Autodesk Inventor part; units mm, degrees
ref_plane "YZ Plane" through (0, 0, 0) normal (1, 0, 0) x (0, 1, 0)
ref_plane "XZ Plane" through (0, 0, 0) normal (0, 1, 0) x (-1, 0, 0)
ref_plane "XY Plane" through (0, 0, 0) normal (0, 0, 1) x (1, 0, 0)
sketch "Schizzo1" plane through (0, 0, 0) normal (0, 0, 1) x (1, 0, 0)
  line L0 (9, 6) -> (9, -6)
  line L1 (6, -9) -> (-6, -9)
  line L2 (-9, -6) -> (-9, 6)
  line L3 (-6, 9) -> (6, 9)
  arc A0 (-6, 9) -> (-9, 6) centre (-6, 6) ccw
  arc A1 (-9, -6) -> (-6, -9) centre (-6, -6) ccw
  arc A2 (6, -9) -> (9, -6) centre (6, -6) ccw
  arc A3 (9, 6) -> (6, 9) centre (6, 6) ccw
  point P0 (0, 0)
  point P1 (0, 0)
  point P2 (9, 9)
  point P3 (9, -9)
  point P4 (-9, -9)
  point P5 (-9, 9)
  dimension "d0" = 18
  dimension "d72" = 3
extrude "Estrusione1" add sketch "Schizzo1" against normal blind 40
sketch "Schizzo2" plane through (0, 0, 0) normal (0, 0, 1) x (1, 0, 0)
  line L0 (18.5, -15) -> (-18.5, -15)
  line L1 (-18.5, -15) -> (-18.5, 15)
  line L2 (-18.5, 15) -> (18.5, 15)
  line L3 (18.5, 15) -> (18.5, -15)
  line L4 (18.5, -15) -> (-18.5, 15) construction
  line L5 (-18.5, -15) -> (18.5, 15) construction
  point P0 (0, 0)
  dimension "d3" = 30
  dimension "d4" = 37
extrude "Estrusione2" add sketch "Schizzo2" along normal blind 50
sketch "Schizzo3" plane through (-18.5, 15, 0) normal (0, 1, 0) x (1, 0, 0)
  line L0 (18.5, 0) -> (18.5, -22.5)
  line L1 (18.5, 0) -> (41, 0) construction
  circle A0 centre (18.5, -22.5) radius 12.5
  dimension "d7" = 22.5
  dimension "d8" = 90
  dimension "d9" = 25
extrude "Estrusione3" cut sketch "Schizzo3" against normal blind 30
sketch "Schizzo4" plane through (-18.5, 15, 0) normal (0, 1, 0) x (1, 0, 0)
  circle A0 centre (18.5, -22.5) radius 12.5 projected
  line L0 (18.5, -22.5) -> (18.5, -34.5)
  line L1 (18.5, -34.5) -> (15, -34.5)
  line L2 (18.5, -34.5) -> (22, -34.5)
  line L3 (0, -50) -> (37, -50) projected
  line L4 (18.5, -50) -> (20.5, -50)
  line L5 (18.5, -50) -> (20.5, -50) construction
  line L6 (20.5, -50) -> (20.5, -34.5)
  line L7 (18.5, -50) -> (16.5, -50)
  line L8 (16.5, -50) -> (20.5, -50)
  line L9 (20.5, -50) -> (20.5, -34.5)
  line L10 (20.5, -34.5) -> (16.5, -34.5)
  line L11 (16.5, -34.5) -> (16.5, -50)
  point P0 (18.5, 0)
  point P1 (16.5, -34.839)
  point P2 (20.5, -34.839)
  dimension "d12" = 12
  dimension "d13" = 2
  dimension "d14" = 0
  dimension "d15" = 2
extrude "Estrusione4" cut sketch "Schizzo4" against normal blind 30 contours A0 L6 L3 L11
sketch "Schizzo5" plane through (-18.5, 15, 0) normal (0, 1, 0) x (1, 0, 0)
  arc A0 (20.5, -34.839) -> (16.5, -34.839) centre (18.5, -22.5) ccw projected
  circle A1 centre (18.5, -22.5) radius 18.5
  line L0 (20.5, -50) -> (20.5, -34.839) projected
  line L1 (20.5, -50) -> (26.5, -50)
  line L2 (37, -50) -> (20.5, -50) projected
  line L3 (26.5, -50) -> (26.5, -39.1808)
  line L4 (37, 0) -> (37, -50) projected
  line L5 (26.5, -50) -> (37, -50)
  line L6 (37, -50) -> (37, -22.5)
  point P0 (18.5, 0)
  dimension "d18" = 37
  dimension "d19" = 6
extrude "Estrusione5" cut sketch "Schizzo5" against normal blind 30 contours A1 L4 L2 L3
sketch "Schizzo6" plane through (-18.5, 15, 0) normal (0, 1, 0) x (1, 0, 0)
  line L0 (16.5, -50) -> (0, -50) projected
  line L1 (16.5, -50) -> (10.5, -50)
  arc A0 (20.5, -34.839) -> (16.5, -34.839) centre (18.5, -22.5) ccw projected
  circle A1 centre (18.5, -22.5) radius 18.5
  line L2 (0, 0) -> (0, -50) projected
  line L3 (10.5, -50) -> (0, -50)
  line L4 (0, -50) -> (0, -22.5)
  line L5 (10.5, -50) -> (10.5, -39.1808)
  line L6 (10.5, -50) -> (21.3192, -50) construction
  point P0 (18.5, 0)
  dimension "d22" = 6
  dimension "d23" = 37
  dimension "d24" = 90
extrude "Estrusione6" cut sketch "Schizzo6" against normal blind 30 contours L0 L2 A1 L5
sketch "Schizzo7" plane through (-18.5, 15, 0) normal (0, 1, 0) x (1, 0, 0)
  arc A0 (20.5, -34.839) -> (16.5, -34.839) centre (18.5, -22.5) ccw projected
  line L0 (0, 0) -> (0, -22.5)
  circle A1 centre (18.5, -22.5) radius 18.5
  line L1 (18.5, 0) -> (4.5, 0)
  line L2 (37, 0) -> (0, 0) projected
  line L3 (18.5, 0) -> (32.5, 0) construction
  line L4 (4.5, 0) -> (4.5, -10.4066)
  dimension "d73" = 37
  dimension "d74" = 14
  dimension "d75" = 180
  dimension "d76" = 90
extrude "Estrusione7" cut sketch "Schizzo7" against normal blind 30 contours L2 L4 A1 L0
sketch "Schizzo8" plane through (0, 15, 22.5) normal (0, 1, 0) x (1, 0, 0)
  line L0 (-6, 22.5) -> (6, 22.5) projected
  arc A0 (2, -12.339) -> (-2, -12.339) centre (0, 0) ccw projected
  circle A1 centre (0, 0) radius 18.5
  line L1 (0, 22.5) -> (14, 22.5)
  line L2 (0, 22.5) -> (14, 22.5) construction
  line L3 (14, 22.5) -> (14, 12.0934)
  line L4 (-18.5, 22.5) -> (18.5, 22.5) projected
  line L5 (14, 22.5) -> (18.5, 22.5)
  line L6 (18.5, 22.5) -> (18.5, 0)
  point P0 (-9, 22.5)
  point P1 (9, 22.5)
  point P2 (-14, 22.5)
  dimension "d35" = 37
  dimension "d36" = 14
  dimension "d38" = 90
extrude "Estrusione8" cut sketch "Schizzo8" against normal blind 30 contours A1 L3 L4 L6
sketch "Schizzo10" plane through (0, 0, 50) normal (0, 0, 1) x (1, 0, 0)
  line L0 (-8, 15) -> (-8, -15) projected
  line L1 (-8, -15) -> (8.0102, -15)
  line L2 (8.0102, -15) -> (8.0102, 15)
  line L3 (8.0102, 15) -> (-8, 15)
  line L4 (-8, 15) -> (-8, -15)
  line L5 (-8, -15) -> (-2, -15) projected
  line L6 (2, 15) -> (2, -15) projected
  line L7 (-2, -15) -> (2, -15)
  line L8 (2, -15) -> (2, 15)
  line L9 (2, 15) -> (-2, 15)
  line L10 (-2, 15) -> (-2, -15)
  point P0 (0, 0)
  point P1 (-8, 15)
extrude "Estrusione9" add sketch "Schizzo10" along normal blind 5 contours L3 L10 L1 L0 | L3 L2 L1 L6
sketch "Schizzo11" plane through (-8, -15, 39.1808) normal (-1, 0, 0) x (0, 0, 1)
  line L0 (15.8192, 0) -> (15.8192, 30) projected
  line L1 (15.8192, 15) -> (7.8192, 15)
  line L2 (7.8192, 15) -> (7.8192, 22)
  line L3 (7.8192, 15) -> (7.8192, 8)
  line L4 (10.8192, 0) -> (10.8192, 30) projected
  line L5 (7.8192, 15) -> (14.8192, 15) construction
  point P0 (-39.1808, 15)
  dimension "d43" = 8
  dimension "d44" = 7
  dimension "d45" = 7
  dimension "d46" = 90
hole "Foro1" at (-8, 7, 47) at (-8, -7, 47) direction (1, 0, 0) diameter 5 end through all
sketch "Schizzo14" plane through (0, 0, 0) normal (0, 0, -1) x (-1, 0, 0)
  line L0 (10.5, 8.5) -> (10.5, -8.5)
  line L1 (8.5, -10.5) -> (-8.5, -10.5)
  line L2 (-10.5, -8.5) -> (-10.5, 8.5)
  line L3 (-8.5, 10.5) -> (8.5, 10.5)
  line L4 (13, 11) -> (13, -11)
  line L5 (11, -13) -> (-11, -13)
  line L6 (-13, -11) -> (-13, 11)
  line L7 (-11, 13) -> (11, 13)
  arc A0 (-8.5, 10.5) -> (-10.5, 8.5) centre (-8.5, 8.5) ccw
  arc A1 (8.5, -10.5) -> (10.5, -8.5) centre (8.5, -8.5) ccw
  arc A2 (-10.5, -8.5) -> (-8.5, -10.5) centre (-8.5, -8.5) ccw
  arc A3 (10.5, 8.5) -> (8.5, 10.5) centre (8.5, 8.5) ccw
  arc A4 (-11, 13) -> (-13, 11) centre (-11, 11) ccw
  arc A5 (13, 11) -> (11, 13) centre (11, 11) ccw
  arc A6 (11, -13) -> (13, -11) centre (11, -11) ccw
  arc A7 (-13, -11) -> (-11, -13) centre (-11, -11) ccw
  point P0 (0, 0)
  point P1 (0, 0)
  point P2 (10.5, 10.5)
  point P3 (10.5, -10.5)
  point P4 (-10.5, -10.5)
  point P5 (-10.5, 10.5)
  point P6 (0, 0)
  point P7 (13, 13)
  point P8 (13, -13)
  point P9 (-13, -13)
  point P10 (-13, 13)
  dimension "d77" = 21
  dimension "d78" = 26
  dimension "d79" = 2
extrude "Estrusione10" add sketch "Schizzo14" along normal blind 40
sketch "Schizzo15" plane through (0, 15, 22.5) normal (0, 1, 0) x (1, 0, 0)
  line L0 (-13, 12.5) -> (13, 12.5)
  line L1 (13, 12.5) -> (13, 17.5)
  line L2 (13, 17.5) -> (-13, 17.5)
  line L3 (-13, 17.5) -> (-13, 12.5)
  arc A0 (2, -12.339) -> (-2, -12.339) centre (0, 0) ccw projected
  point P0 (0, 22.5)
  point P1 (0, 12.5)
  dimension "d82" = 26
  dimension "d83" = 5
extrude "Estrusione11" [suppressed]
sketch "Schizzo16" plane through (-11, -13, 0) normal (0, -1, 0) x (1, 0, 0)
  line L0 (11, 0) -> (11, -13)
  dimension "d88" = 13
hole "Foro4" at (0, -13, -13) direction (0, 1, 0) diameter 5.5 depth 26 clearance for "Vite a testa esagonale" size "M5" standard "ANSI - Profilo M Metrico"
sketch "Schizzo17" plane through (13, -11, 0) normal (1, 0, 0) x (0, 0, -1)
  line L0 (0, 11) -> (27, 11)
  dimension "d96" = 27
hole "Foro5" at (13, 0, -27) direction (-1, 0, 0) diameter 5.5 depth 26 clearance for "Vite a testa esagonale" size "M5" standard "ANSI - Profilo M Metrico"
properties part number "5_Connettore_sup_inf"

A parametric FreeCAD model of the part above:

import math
import FreeCAD as App
import Part
import Sketcher
from FreeCAD import Vector


def add_polygon(sketch, points):
    """Adds a closed chain of lines whose ends are joined by coincident constraints."""
    first, n = sketch.GeometryCount, len(points)
    for a, b in zip(points, points[1:] + points[:1]):
        sketch.addGeometry(Part.LineSegment(App.Vector(*a, 0), App.Vector(*b, 0)), False)
    for i in range(n):
        sketch.addConstraint(Sketcher.Constraint("Coincident", first + i, 2, first + (i + 1) % n, 1))

doc = App.newDocument("Part")
body = doc.addObject("PartDesign::Body", "Body")

# Sketch on XY plane
sketch1 = body.newObject("Sketcher::SketchObject", "Sketch")
sketch1.AttachmentSupport = (doc.getObject("XY_Plane"), [""])
sketch1.MapMode = "FlatFace"
sketch1.addGeometry(Part.LineSegment(Vector(9, -6, 0), Vector(9, 6, 0)), False)
sketch1.addGeometry(Part.ArcOfCircle(Part.Circle(Vector(6, 6, 0), Vector(0, 0, 1), 3), math.radians(0), math.radians(90)), False)
sketch1.addGeometry(Part.LineSegment(Vector(6, 9, 0), Vector(-6, 9, 0)), False)
sketch1.addGeometry(Part.ArcOfCircle(Part.Circle(Vector(-6, 6, 0), Vector(0, 0, 1), 3), math.radians(90), math.radians(180)), False)
sketch1.addGeometry(Part.LineSegment(Vector(-9, 6, 0), Vector(-9, -6, 0)), False)
sketch1.addGeometry(Part.ArcOfCircle(Part.Circle(Vector(-6, -6, 0), Vector(0, 0, 1), 3), math.radians(180), math.radians(270)), False)
sketch1.addGeometry(Part.LineSegment(Vector(-6, -9, 0), Vector(6, -9, 0)), False)
sketch1.addGeometry(Part.ArcOfCircle(Part.Circle(Vector(6, -6, 0), Vector(0, 0, 1), 3), math.radians(-90), math.radians(0)), False)
sketch1.addConstraint(Sketcher.Constraint("Tangent", 0, 2, 1, 1))
sketch1.addConstraint(Sketcher.Constraint("Tangent", 1, 2, 2, 1))
sketch1.addConstraint(Sketcher.Constraint("Tangent", 2, 2, 3, 1))
sketch1.addConstraint(Sketcher.Constraint("Tangent", 3, 2, 4, 1))
sketch1.addConstraint(Sketcher.Constraint("Tangent", 4, 2, 5, 1))
sketch1.addConstraint(Sketcher.Constraint("Tangent", 5, 2, 6, 1))
sketch1.addConstraint(Sketcher.Constraint("Tangent", 6, 2, 7, 1))
sketch1.addConstraint(Sketcher.Constraint("Tangent", 7, 2, 0, 1))
sketch1.addConstraint(Sketcher.Constraint("Vertical", 0))
sketch1.addConstraint(Sketcher.Constraint("Horizontal", 2))
sketch1.addConstraint(Sketcher.Constraint("Vertical", 4))
sketch1.addConstraint(Sketcher.Constraint("Horizontal", 6))
sketch1.addConstraint(Sketcher.Constraint("Equal", 1, 3))
sketch1.addConstraint(Sketcher.Constraint("Equal", 3, 5))
sketch1.addConstraint(Sketcher.Constraint("Equal", 5, 7))
sketch1.addConstraint(Sketcher.Constraint("Symmetric", 1, 3, 5, 3, -1, 1))
sketch1.addConstraint(Sketcher.Constraint("Equal", 6, 0))
sketch1.addConstraint(Sketcher.Constraint("Radius", 1, 3.0))
sketch1.addConstraint(Sketcher.Constraint("DistanceX", 2, 2, 2, 1, 12.0))
pad1 = body.newObject("PartDesign::Pad", "Pad")
pad1.Profile = sketch1
pad1.Length = 40
pad1.Reversed = True

# Sketch on XY plane
sketch2 = body.newObject("Sketcher::SketchObject", "Sketch001")
sketch2.AttachmentSupport = (doc.getObject("XY_Plane"), [""])
sketch2.MapMode = "FlatFace"
add_polygon(sketch2, [(-18, -15), (18, -15), (18, 15), (-18, 15)])  # lines 0-3
sketch2.addConstraint(Sketcher.Constraint("Horizontal", 0))
sketch2.addConstraint(Sketcher.Constraint("Vertical", 1))
sketch2.addConstraint(Sketcher.Constraint("Horizontal", 2))
sketch2.addConstraint(Sketcher.Constraint("Vertical", 3))
sketch2.addConstraint(Sketcher.Constraint("Symmetric", 0, 2, 2, 2, -1, 1))
sketch2.addConstraint(Sketcher.Constraint("DistanceX", 0, 1, 0, 2, 37.0))
sketch2.addConstraint(Sketcher.Constraint("DistanceY", 1, 1, 1, 2, 30.0))
pad2 = body.newObject("PartDesign::Pad", "Pad001")
pad2.Profile = sketch2
pad2.Length = 50

# Sketch on XZ plane
sketch3 = body.newObject("Sketcher::SketchObject", "Sketch002")
sketch3.AttachmentSupport = (doc.getObject("XZ_Plane"), [""])
sketch3.MapMode = "FlatFace"
sketch3.AttachmentOffset = App.Placement(Vector(0, 0, -15), App.Rotation())
sketch3.addGeometry(Part.Circle(Vector(0, 22, 0), Vector(0, 0, 1), 12), False)
sketch3.addConstraint(Sketcher.Constraint("PointOnObject", 0, 3, -2))
sketch3.addConstraint(Sketcher.Constraint("Diameter", 0, 25.0))
sketch3.addConstraint(Sketcher.Constraint("DistanceY", -1, 1, 0, 3, 22.5))
pocket1 = body.newObject("PartDesign::Pocket", "Pocket")
pocket1.Profile = sketch3
pocket1.Length = 30
pocket1.Reversed = True

# Sketch on XZ plane
sketch4 = body.newObject("Sketcher::SketchObject", "Sketch003")
sketch4.AttachmentSupport = (doc.getObject("XZ_Plane"), [""])
sketch4.MapMode = "FlatFace"
sketch4.AttachmentOffset = App.Placement(Vector(0, 0, -15), App.Rotation())
sketch4.addGeometry(Part.ArcOfCircle(Part.Circle(Vector(0, 22.5, 0), Vector(0, 0, 1), 12.5), math.radians(80.79), math.radians(99.21)), False)
sketch4.addGeometry(Part.LineSegment(Vector(-2, 34.8, 0), Vector(-2, 50, 0)), False)
sketch4.addGeometry(Part.LineSegment(Vector(-2, 50, 0), Vector(2, 50, 0)), False)
sketch4.addGeometry(Part.LineSegment(Vector(2, 50, 0), Vector(2, 34.8, 0)), False)
sketch4.addConstraint(Sketcher.Constraint("Coincident", 0, 2, 1, 1))
sketch4.addConstraint(Sketcher.Constraint("Coincident", 1, 2, 2, 1))
sketch4.addConstraint(Sketcher.Constraint("Coincident", 2, 2, 3, 1))
sketch4.addConstraint(Sketcher.Constraint("Coincident", 3, 2, 0, 1))
sketch4.addConstraint(Sketcher.Constraint("Vertical", 1))
sketch4.addConstraint(Sketcher.Constraint("Horizontal", 2))
sketch4.addConstraint(Sketcher.Constraint("Vertical", 3))
sketch4.addConstraint(Sketcher.Constraint("Symmetric", 0, 2, 3, 2, -2))
sketch4.addConstraint(Sketcher.Constraint("DistanceX", 0, 2, -1, 1, 2.0))
sketch4.addConstraint(Sketcher.Constraint("Radius", 0, 12.5))
sketch4.addConstraint(Sketcher.Constraint("DistanceY", -1, 1, 1, 2, 50.0))
sketch4.addConstraint(Sketcher.Constraint("DistanceY", -1, 1, 0, 3, 22.5))
pocket2 = body.newObject("PartDesign::Pocket", "Pocket001")
pocket2.Profile = sketch4
pocket2.Length = 30
pocket2.Reversed = True

# Sketch on XZ plane
sketch5 = body.newObject("Sketcher::SketchObject", "Sketch004")
sketch5.AttachmentSupport = (doc.getObject("XZ_Plane"), [""])
sketch5.MapMode = "FlatFace"
sketch5.AttachmentOffset = App.Placement(Vector(0, 0, -15), App.Rotation())
sketch5.addGeometry(Part.ArcOfCircle(Part.Circle(Vector(0, 22, 0), Vector(0, 0, 1), 18), math.radians(0), math.radians(64)), False)
sketch5.addGeometry(Part.LineSegment(Vector(8, 39, 0), Vector(8, 50, 0)), False)
sketch5.addGeometry(Part.LineSegment(Vector(8, 50, 0), Vector(18, 50, 0)), False)
sketch5.addGeometry(Part.LineSegment(Vector(18, 50, 0), Vector(18, 22, 0)), False)
sketch5.addConstraint(Sketcher.Constraint("Coincident", 0, 2, 1, 1))
sketch5.addConstraint(Sketcher.Constraint("Coincident", 1, 2, 2, 1))
sketch5.addConstraint(Sketcher.Constraint("Coincident", 2, 2, 3, 1))
sketch5.addConstraint(Sketcher.Constraint("Tangent", 3, 2, 0, 1))
sketch5.addConstraint(Sketcher.Constraint("Vertical", 1))
sketch5.addConstraint(Sketcher.Constraint("Horizontal", 2))
sketch5.addConstraint(Sketcher.Constraint("Vertical", 3))
sketch5.addConstraint(Sketcher.Constraint("PointOnObject", 0, 3, -2))
sketch5.addConstraint(Sketcher.Constraint("Radius", 0, 18.5))
sketch5.addConstraint(Sketcher.Constraint("DistanceX", 2, 1, 2, 2, 10.5))
sketch5.addConstraint(Sketcher.Constraint("DistanceY", 3, 2, 3, 1, 27.5))
sketch5.addConstraint(Sketcher.Constraint("DistanceY", -1, 1, 1, 2, 50.0))
pocket3 = body.newObject("PartDesign::Pocket", "Pocket002")
pocket3.Profile = sketch5
pocket3.Length = 30
pocket3.Reversed = True

# Sketch on XZ plane
sketch6 = body.newObject("Sketcher::SketchObject", "Sketch005")
sketch6.AttachmentSupport = (doc.getObject("XZ_Plane"), [""])
sketch6.MapMode = "FlatFace"
sketch6.AttachmentOffset = App.Placement(Vector(0, 0, -15), App.Rotation())
sketch6.addGeometry(Part.LineSegment(Vector(-18, 50, 0), Vector(-8, 50, 0)), False)
sketch6.addGeometry(Part.LineSegment(Vector(-8, 50, 0), Vector(-8, 39, 0)), False)
sketch6.addGeometry(Part.ArcOfCircle(Part.Circle(Vector(0, 22, 0), Vector(0, 0, 1), 18), math.radians(116), math.radians(180)), False)
sketch6.addGeometry(Part.LineSegment(Vector(-18, 22, 0), Vector(-18, 50, 0)), False)
sketch6.addConstraint(Sketcher.Constraint("Coincident", 0, 2, 1, 1))
sketch6.addConstraint(Sketcher.Constraint("Coincident", 1, 2, 2, 1))
sketch6.addConstraint(Sketcher.Constraint("Tangent", 2, 2, 3, 1))
sketch6.addConstraint(Sketcher.Constraint("Coincident", 3, 2, 0, 1))
sketch6.addConstraint(Sketcher.Constraint("Horizontal", 0))
sketch6.addConstraint(Sketcher.Constraint("Vertical", 1))
sketch6.addConstraint(Sketcher.Constraint("Vertical", 3))
sketch6.addConstraint(Sketcher.Constraint("PointOnObject", 2, 3, -2))
sketch6.addConstraint(Sketcher.Constraint("Radius", 2, 18.5))
sketch6.addConstraint(Sketcher.Constraint("DistanceX", 0, 1, 0, 2, 10.5))
sketch6.addConstraint(Sketcher.Constraint("DistanceY", 3, 1, 3, 2, 27.5))
sketch6.addConstraint(Sketcher.Constraint("DistanceY", -1, 1, 0, 2, 50.0))
pocket4 = body.newObject("PartDesign::Pocket", "Pocket003")
pocket4.Profile = sketch6
pocket4.Length = 30
pocket4.Reversed = True

# Sketch on XZ plane
sketch7 = body.newObject("Sketcher::SketchObject", "Sketch006")
sketch7.AttachmentSupport = (doc.getObject("XZ_Plane"), [""])
sketch7.MapMode = "FlatFace"
sketch7.AttachmentOffset = App.Placement(Vector(0, 0, -15), App.Rotation())
sketch7.addGeometry(Part.LineSegment(Vector(-14, 0, 0), Vector(-18.5, 0, 0)), False)
sketch7.addGeometry(Part.LineSegment(Vector(-18.5, 0, 0), Vector(-18.5, 22.5, 0)), False)
sketch7.addGeometry(Part.ArcOfCircle(Part.Circle(Vector(0, 22.5, 0), Vector(0, 0, 1), 18.5), math.radians(180), math.radians(221)), False)
sketch7.addGeometry(Part.LineSegment(Vector(-14, 10.4, 0), Vector(-14, 0, 0)), False)
sketch7.addConstraint(Sketcher.Constraint("Coincident", 0, 2, 1, 1))
sketch7.addConstraint(Sketcher.Constraint("Tangent", 1, 2, 2, 1))
sketch7.addConstraint(Sketcher.Constraint("Coincident", 2, 2, 3, 1))
sketch7.addConstraint(Sketcher.Constraint("Coincident", 3, 2, 0, 1))
sketch7.addConstraint(Sketcher.Constraint("Horizontal", 0))
sketch7.addConstraint(Sketcher.Constraint("Vertical", 1))
sketch7.addConstraint(Sketcher.Constraint("Vertical", 3))
sketch7.addConstraint(Sketcher.Constraint("PointOnObject", 2, 3, -2))
sketch7.addConstraint(Sketcher.Constraint("PointOnObject", 0, 2, -1))
sketch7.addConstraint(Sketcher.Constraint("Radius", 2, 18.5))
sketch7.addConstraint(Sketcher.Constraint("DistanceX", 2, 2, -1, 1, 14.0))
sketch7.addConstraint(Sketcher.Constraint("DistanceY", 1, 1, 1, 2, 22.5))
pocket5 = body.newObject("PartDesign::Pocket", "Pocket004")
pocket5.Profile = sketch7
pocket5.Length = 30
pocket5.Reversed = True

# Sketch on XZ plane
sketch8 = body.newObject("Sketcher::SketchObject", "Sketch007")
sketch8.AttachmentSupport = (doc.getObject("XZ_Plane"), [""])
sketch8.MapMode = "FlatFace"
sketch8.AttachmentOffset = App.Placement(Vector(0, 0, -15), App.Rotation())
sketch8.addGeometry(Part.ArcOfCircle(Part.Circle(Vector(0, 22.5, 0), Vector(0, 0, 1), 18.5), math.radians(-41), math.radians(0)), False)
sketch8.addGeometry(Part.LineSegment(Vector(18.5, 22.5, 0), Vector(18.5, 0, 0)), False)
sketch8.addGeometry(Part.LineSegment(Vector(18.5, 0, 0), Vector(14, 0, 0)), False)
sketch8.addGeometry(Part.LineSegment(Vector(14, 0, 0), Vector(14, 10.4, 0)), False)
sketch8.addConstraint(Sketcher.Constraint("Tangent", 0, 2, 1, 1))
sketch8.addConstraint(Sketcher.Constraint("Coincident", 1, 2, 2, 1))
sketch8.addConstraint(Sketcher.Constraint("Coincident", 2, 2, 3, 1))
sketch8.addConstraint(Sketcher.Constraint("Coincident", 3, 2, 0, 1))
sketch8.addConstraint(Sketcher.Constraint("Vertical", 1))
sketch8.addConstraint(Sketcher.Constraint("Horizontal", 2))
sketch8.addConstraint(Sketcher.Constraint("Vertical", 3))
sketch8.addConstraint(Sketcher.Constraint("PointOnObject", 0, 3, -2))
sketch8.addConstraint(Sketcher.Constraint("PointOnObject", 1, 2, -1))
sketch8.addConstraint(Sketcher.Constraint("Radius", 0, 18.5))
sketch8.addConstraint(Sketcher.Constraint("DistanceX", -1, 1, 2, 2, 14.0))
sketch8.addConstraint(Sketcher.Constraint("DistanceY", 1, 2, 1, 1, 22.5))
pocket6 = body.newObject("PartDesign::Pocket", "Pocket005")
pocket6.Profile = sketch8
pocket6.Length = 30
pocket6.Reversed = True

# Sketch on XY plane
sketch9 = body.newObject("Sketcher::SketchObject", "Sketch008")
sketch9.AttachmentSupport = (doc.getObject("XY_Plane"), [""])
sketch9.MapMode = "FlatFace"
sketch9.AttachmentOffset = App.Placement(Vector(0, 0, 50), App.Rotation())
add_polygon(sketch9, [(-2, 15), (-8, 15), (-8, -15), (-2, -15)])  # lines 0-3
add_polygon(sketch9, [(8, 15), (2, 15), (2, -15), (8, -15)])  # lines 4-7
sketch9.addConstraint(Sketcher.Constraint("Horizontal", 0))
sketch9.addConstraint(Sketcher.Constraint("Vertical", 1))
sketch9.addConstraint(Sketcher.Constraint("Horizontal", 2))
sketch9.addConstraint(Sketcher.Constraint("Vertical", 3))
sketch9.addConstraint(Sketcher.Constraint("Horizontal", 4))
sketch9.addConstraint(Sketcher.Constraint("Vertical", 5))
sketch9.addConstraint(Sketcher.Constraint("Horizontal", 6))
sketch9.addConstraint(Sketcher.Constraint("Vertical", 7))
sketch9.addConstraint(Sketcher.Constraint("Symmetric", 2, 2, 4, 2, -1, 1))
sketch9.addConstraint(Sketcher.Constraint("Horizontal", 3, 2, 4, 2))
sketch9.addConstraint(Sketcher.Constraint("Horizontal", 2, 2, 5, 2))
sketch9.addConstraint(Sketcher.Constraint("DistanceX", 0, 2, 0, 1, 6.0))
sketch9.addConstraint(Sketcher.Constraint("DistanceY", 1, 2, 1, 1, 30.0))
sketch9.addConstraint(Sketcher.Constraint("DistanceX", 0, 2, -1, 1, 8.0))
sketch9.addConstraint(Sketcher.Constraint("DistanceX", 4, 2, 4, 1, 6.0102))
pad3 = body.newObject("PartDesign::Pad", "Pad002")
pad3.Profile = sketch9
pad3.Length = 5

# Sketch on YZ plane
sketch10 = body.newObject("Sketcher::SketchObject", "Sketch009")
sketch10.AttachmentSupport = (doc.getObject("YZ_Plane"), [""])
sketch10.MapMode = "FlatFace"
sketch10.AttachmentOffset = App.Placement(Vector(0, 0, -8), App.Rotation())
sketch10.addGeometry(Part.Circle(Vector(7, 47, 0), Vector(0, 0, 1), 2.5), False)
sketch10.addGeometry(Part.Circle(Vector(-7, 47, 0), Vector(0, 0, 1), 2.5), False)
sketch10.addConstraint(Sketcher.Constraint("Equal", 0, 1))
sketch10.addConstraint(Sketcher.Constraint("Symmetric", 0, 3, 1, 3, -2))
sketch10.addConstraint(Sketcher.Constraint("Diameter", 0, 5.0))
sketch10.addConstraint(Sketcher.Constraint("DistanceX", -1, 1, 0, 3, 7.0))
sketch10.addConstraint(Sketcher.Constraint("DistanceY", -1, 1, 0, 3, 47.0))
doc.recompute()
hole = body.newObject("PartDesign::Hole", "Hole")
hole.Profile = sketch10
hole.ThreadType = "None"
hole.Diameter = 5
hole.DepthType = "ThroughAll"
hole.Reversed = True

# Sketch on XY plane
sketch11 = body.newObject("Sketcher::SketchObject", "Sketch010")
sketch11.AttachmentSupport = (doc.getObject("XY_Plane"), [""])
sketch11.MapMode = "FlatFace"
sketch11.addGeometry(Part.LineSegment(Vector(-13, -11, 0), Vector(-13, 11, 0)), False)
sketch11.addGeometry(Part.ArcOfCircle(Part.Circle(Vector(-11, 11, 0), Vector(0, 0, 1), 2), math.radians(90), math.radians(180)), False)
sketch11.addGeometry(Part.LineSegment(Vector(-11, 13, 0), Vector(11, 13, 0)), False)
sketch11.addGeometry(Part.ArcOfCircle(Part.Circle(Vector(11, 11, 0), Vector(0, 0, 1), 2), math.radians(0), math.radians(90)), False)
sketch11.addGeometry(Part.LineSegment(Vector(13, 11, 0), Vector(13, -11, 0)), False)
sketch11.addGeometry(Part.ArcOfCircle(Part.Circle(Vector(11, -11, 0), Vector(0, 0, 1), 2), math.radians(-90), math.radians(0)), False)
sketch11.addGeometry(Part.LineSegment(Vector(11, -13, 0), Vector(-11, -13, 0)), False)
sketch11.addGeometry(Part.ArcOfCircle(Part.Circle(Vector(-11, -11, 0), Vector(0, 0, 1), 2), math.radians(180), math.radians(270)), False)
sketch11.addGeometry(Part.ArcOfCircle(Part.Circle(Vector(-8.5, 8.5, 0), Vector(0, 0, 1), 2), math.radians(90), math.radians(180)), False)
sketch11.addGeometry(Part.LineSegment(Vector(-10.5, 8.5, 0), Vector(-10.5, -8.5, 0)), False)
sketch11.addGeometry(Part.ArcOfCircle(Part.Circle(Vector(-8.5, -8.5, 0), Vector(0, 0, 1), 2), math.radians(180), math.radians(270)), False)
sketch11.addGeometry(Part.LineSegment(Vector(-8.5, -10.5, 0), Vector(8.5, -10.5, 0)), False)
sketch11.addGeometry(Part.ArcOfCircle(Part.Circle(Vector(8.5, -8.5, 0), Vector(0, 0, 1), 2), math.radians(-90), math.radians(0)), False)
sketch11.addGeometry(Part.LineSegment(Vector(10.5, -8.5, 0), Vector(10.5, 8.5, 0)), False)
sketch11.addGeometry(Part.ArcOfCircle(Part.Circle(Vector(8.5, 8.5, 0), Vector(0, 0, 1), 2), math.radians(0), math.radians(90)), False)
sketch11.addGeometry(Part.LineSegment(Vector(8.5, 10.5, 0), Vector(-8.5, 10.5, 0)), False)
sketch11.addConstraint(Sketcher.Constraint("Tangent", 0, 2, 1, 2))
sketch11.addConstraint(Sketcher.Constraint("Tangent", 1, 1, 2, 1))
sketch11.addConstraint(Sketcher.Constraint("Tangent", 2, 2, 3, 2))
sketch11.addConstraint(Sketcher.Constraint("Tangent", 3, 1, 4, 1))
sketch11.addConstraint(Sketcher.Constraint("Tangent", 4, 2, 5, 2))
sketch11.addConstraint(Sketcher.Constraint("Tangent", 5, 1, 6, 1))
sketch11.addConstraint(Sketcher.Constraint("Tangent", 6, 2, 7, 2))
sketch11.addConstraint(Sketcher.Constraint("Tangent", 7, 1, 0, 1))
sketch11.addConstraint(Sketcher.Constraint("Tangent", 8, 2, 9, 1))
sketch11.addConstraint(Sketcher.Constraint("Tangent", 9, 2, 10, 1))
sketch11.addConstraint(Sketcher.Constraint("Tangent", 10, 2, 11, 1))
sketch11.addConstraint(Sketcher.Constraint("Tangent", 11, 2, 12, 1))
sketch11.addConstraint(Sketcher.Constraint("Tangent", 12, 2, 13, 1))
sketch11.addConstraint(Sketcher.Constraint("Tangent", 13, 2, 14, 1))
sketch11.addConstraint(Sketcher.Constraint("Tangent", 14, 2, 15, 1))
sketch11.addConstraint(Sketcher.Constraint("Tangent", 15, 2, 8, 1))
sketch11.addConstraint(Sketcher.Constraint("Vertical", 0))
sketch11.addConstraint(Sketcher.Constraint("Horizontal", 2))
sketch11.addConstraint(Sketcher.Constraint("Vertical", 4))
sketch11.addConstraint(Sketcher.Constraint("Horizontal", 6))
sketch11.addConstraint(Sketcher.Constraint("Vertical", 9))
sketch11.addConstraint(Sketcher.Constraint("Horizontal", 11))
sketch11.addConstraint(Sketcher.Constraint("Vertical", 13))
sketch11.addConstraint(Sketcher.Constraint("Horizontal", 15))
sketch11.addConstraint(Sketcher.Constraint("Equal", 1, 3))
sketch11.addConstraint(Sketcher.Constraint("Equal", 3, 5))
sketch11.addConstraint(Sketcher.Constraint("Equal", 5, 7))
sketch11.addConstraint(Sketcher.Constraint("Equal", 7, 8))
sketch11.addConstraint(Sketcher.Constraint("Equal", 8, 10))
sketch11.addConstraint(Sketcher.Constraint("Equal", 10, 12))
sketch11.addConstraint(Sketcher.Constraint("Equal", 12, 14))
sketch11.addConstraint(Sketcher.Constraint("Symmetric", 1, 3, 5, 3, -1, 1))
sketch11.addConstraint(Sketcher.Constraint("Symmetric", 8, 3, 12, 3, -1, 1))
sketch11.addConstraint(Sketcher.Constraint("Equal", 6, 0))
sketch11.addConstraint(Sketcher.Constraint("Equal", 15, 9))
sketch11.addConstraint(Sketcher.Constraint("Radius", 1, 2.0))
sketch11.addConstraint(Sketcher.Constraint("DistanceX", 2, 1, 2, 2, 22.0))
sketch11.addConstraint(Sketcher.Constraint("DistanceX", 11, 1, 11, 2, 17.0))
pad4 = body.newObject("PartDesign::Pad", "Pad003")
pad4.Profile = sketch11
pad4.Length = 40
pad4.Reversed = True

# Sketch on XZ plane
sketch12 = body.newObject("Sketcher::SketchObject", "Sketch011")
sketch12.AttachmentSupport = (doc.getObject("XZ_Plane"), [""])
sketch12.MapMode = "FlatFace"
sketch12.AttachmentOffset = App.Placement(Vector(0, 0, 13), App.Rotation())
sketch12.addGeometry(Part.Circle(Vector(0, -13, 0), Vector(0, 0, 1), 2.8), False)
sketch12.addConstraint(Sketcher.Constraint("PointOnObject", 0, 3, -2))
sketch12.addConstraint(Sketcher.Constraint("Diameter", 0, 5.5))
sketch12.addConstraint(Sketcher.Constraint("DistanceY", 0, 3, -1, 1, 13.0))
doc.recompute()
hole2 = body.newObject("PartDesign::Hole", "Hole001")
hole2.Profile = sketch12
hole2.ThreadType = "None"
hole2.Diameter = 5.5
hole2.DepthType = "Dimension"
hole2.Depth = 26
hole2.DrillPoint = "Flat"

# Sketch on YZ plane
sketch13 = body.newObject("Sketcher::SketchObject", "Sketch012")
sketch13.AttachmentSupport = (doc.getObject("YZ_Plane"), [""])
sketch13.MapMode = "FlatFace"
sketch13.AttachmentOffset = App.Placement(Vector(0, 0, 13), App.Rotation())
sketch13.addGeometry(Part.Circle(Vector(0, -27, 0), Vector(0, 0, 1), 2.8), False)
sketch13.addConstraint(Sketcher.Constraint("PointOnObject", 0, 3, -2))
sketch13.addConstraint(Sketcher.Constraint("Diameter", 0, 5.5))
sketch13.addConstraint(Sketcher.Constraint("DistanceY", 0, 3, -1, 1, 27.0))
doc.recompute()
hole3 = body.newObject("PartDesign::Hole", "Hole002")
hole3.Profile = sketch13
hole3.ThreadType = "None"
hole3.Diameter = 5.5
hole3.DepthType = "Dimension"
hole3.Depth = 26
hole3.DrillPoint = "Flat"

doc.recompute()
